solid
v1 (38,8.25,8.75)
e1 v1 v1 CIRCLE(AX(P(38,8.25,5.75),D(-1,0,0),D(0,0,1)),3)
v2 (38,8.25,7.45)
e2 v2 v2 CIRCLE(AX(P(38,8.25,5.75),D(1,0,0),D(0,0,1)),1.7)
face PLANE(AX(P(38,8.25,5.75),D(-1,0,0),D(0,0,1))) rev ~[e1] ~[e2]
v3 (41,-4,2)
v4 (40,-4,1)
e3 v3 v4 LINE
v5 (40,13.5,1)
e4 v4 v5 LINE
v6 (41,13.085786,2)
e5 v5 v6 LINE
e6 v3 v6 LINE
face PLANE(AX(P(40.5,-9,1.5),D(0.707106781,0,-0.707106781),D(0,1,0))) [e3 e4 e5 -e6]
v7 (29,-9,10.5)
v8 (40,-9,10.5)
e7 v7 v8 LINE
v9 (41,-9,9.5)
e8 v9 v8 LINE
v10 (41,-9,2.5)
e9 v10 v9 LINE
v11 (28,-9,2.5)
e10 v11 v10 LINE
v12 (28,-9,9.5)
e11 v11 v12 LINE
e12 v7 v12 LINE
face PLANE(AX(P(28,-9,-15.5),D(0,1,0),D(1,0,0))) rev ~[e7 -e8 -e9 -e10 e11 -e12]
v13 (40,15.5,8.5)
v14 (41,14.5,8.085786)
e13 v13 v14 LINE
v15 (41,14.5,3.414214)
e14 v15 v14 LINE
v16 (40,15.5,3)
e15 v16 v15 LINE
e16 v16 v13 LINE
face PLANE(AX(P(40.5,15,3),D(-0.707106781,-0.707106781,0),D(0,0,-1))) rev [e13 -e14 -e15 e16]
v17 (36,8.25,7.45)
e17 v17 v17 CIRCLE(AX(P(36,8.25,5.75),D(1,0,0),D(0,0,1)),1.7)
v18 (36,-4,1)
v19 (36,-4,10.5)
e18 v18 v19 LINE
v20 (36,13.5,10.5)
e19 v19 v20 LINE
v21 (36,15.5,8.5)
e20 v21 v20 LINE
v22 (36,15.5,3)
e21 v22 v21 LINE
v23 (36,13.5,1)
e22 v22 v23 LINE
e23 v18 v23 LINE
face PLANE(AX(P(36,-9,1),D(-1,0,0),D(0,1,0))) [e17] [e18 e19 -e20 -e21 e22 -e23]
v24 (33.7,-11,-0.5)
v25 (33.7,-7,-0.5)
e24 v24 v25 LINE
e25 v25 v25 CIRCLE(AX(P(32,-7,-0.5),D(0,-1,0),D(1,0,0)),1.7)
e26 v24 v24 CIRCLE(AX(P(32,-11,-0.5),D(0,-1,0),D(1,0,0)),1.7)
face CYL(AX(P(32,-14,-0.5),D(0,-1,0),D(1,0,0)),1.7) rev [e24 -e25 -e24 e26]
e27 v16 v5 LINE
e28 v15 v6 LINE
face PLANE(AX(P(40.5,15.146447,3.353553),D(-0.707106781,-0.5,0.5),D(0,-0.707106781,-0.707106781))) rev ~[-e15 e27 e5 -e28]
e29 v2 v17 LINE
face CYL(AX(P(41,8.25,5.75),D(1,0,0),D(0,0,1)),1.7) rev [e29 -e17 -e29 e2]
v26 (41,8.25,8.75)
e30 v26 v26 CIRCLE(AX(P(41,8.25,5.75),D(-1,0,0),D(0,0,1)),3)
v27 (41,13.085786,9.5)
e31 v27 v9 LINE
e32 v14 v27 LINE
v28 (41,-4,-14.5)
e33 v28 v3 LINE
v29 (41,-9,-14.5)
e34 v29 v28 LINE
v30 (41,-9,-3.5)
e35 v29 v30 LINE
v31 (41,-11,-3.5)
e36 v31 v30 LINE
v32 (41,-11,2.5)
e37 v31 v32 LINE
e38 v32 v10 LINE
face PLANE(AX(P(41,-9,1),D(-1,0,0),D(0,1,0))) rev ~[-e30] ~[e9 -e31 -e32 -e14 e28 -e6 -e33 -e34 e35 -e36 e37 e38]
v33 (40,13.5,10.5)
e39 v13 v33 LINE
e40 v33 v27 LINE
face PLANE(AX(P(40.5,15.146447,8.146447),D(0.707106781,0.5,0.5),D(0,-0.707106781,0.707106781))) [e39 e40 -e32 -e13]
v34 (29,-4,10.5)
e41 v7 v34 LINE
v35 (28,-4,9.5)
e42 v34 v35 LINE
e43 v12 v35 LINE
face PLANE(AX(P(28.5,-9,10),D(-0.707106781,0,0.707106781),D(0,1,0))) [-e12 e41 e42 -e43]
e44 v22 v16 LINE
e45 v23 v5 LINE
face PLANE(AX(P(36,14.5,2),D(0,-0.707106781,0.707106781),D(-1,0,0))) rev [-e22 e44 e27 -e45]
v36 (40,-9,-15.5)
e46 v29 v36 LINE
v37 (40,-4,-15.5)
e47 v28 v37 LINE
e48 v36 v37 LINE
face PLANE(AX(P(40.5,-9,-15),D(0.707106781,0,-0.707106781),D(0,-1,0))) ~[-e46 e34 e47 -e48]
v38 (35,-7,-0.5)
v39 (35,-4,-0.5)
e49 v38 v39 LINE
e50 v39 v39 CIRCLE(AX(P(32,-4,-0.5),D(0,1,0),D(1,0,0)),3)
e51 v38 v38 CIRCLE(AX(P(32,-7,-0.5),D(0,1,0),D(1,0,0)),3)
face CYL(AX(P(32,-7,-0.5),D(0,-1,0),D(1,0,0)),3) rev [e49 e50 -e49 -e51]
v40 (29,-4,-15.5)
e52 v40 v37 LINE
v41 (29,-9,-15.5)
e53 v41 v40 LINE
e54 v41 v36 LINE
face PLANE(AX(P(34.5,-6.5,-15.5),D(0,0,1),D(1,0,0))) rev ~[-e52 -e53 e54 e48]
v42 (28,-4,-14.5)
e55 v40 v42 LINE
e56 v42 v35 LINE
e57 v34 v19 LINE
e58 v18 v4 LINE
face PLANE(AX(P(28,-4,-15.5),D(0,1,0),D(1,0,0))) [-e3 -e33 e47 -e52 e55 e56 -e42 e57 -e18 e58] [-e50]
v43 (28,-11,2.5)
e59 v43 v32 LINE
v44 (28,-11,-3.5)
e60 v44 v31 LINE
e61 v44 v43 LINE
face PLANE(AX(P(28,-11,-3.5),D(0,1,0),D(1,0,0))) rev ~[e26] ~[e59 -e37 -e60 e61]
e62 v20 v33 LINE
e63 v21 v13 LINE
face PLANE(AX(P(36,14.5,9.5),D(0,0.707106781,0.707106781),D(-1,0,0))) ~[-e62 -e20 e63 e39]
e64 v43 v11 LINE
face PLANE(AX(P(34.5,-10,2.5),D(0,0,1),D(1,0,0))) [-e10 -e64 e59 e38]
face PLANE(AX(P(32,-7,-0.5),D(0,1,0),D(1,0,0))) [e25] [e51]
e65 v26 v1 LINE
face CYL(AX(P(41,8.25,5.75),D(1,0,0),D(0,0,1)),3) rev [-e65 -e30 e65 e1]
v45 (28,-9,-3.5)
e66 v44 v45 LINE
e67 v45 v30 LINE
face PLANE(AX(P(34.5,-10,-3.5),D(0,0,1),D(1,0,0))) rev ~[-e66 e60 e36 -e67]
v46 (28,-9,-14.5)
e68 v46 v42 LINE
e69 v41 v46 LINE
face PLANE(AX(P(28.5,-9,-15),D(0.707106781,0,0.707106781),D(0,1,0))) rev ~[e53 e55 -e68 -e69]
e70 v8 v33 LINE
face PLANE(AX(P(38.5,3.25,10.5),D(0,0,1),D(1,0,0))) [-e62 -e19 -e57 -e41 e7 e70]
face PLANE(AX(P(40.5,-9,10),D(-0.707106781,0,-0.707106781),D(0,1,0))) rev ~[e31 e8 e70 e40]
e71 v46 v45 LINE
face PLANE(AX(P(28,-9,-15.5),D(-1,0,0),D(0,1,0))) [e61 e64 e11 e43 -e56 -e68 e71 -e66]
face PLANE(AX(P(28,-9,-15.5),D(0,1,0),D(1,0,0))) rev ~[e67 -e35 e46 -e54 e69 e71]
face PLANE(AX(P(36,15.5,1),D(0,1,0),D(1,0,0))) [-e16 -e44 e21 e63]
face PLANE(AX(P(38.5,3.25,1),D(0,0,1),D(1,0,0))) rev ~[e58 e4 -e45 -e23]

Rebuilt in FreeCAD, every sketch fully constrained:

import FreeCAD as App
import Part
import Sketcher
from FreeCAD import Vector


def edges_at(feature, points):
    """Names of the edges that pass closest to the given points."""
    edges = feature.Shape.Edges
    near = lambda p: min(range(len(edges)), key=lambda i: edges[i].distToShape(Part.Vertex(*p))[0])
    return sorted({f"Edge{near(p) + 1}" for p in points})

doc = App.newDocument("Part")
body = doc.addObject("PartDesign::Body", "Body")

# Sketch on XZ plane
sketch1 = body.newObject("Sketcher::SketchObject", "Sketch")
sketch1.AttachmentSupport = (doc.getObject("XZ_Plane"), [""])
sketch1.MapMode = "FlatFace"
sketch1.AttachmentOffset = App.Placement(Vector(0, 0, 7), App.Rotation())
sketch1.addGeometry(Part.Circle(Vector(32, -0.5, 0), Vector(0, 0, 1), 3), False)
sketch1.addConstraint([
    Sketcher.Constraint("Diameter", 0, 6.0),
    Sketcher.Constraint("DistanceX", -1, 1, 0, 3, 32.0),
    Sketcher.Constraint("DistanceY", 0, 3, -1, 1, 0.5),
])
pad1 = body.newObject("PartDesign::Pad", "Pad")
pad1.Profile = sketch1
pad1.Length = 3
pad1.Reversed = True
body2 = doc.addObject("PartDesign::Body", "Body001")

# Sketch on XZ plane
sketch2 = body2.newObject("Sketcher::SketchObject", "Sketch001")
sketch2.AttachmentSupport = (doc.getObject("XZ_Plane001"), [""])
sketch2.MapMode = "FlatFace"
sketch2.AttachmentOffset = App.Placement(Vector(0, 0, 14), App.Rotation())
sketch2.addGeometry(Part.Circle(Vector(32, -0.5, 0), Vector(0, 0, 1), 1.7), False)
sketch2.addConstraint([
    Sketcher.Constraint("Diameter", 0, 3.4),
    Sketcher.Constraint("DistanceX", -1, 1, 0, 3, 32.0),
    Sketcher.Constraint("DistanceY", 0, 3, -1, 1, 0.5),
])
pad2 = body2.newObject("PartDesign::Pad", "Pad001")
pad2.Profile = sketch2
pad2.Length = 10
pad2.Reversed = True
body3 = doc.addObject("PartDesign::Body", "Body002")

# Sketch on YZ plane
sketch3 = body3.newObject("Sketcher::SketchObject", "Sketch002")
sketch3.AttachmentSupport = (doc.getObject("YZ_Plane002"), [""])
sketch3.MapMode = "FlatFace"
sketch3.AttachmentOffset = App.Placement(Vector(0, 0, 41), App.Rotation())
sketch3.addGeometry(Part.Circle(Vector(8.25, 5.75, 0), Vector(0, 0, 1), 3), False)
sketch3.addConstraint([
    Sketcher.Constraint("Diameter", 0, 6.0),
    Sketcher.Constraint("DistanceX", -1, 1, 0, 3, 8.25),
    Sketcher.Constraint("DistanceY", -1, 1, 0, 3, 5.75),
])
pad3 = body3.newObject("PartDesign::Pad", "Pad002")
pad3.Profile = sketch3
pad3.Length = 3
pad3.Reversed = True
body4 = doc.addObject("PartDesign::Body", "Body003")

# Sketch on YZ plane
sketch4 = body4.newObject("Sketcher::SketchObject", "Sketch003")
sketch4.AttachmentSupport = (doc.getObject("YZ_Plane003"), [""])
sketch4.MapMode = "FlatFace"
sketch4.AttachmentOffset = App.Placement(Vector(0, 0, 41), App.Rotation())
sketch4.addGeometry(Part.Circle(Vector(8.25, 5.75, 0), Vector(0, 0, 1), 1.7), False)
sketch4.addConstraint([
    Sketcher.Constraint("Diameter", 0, 3.4),
    Sketcher.Constraint("DistanceX", -1, 1, 0, 3, 8.25),
    Sketcher.Constraint("DistanceY", -1, 1, 0, 3, 5.75),
])
pad4 = body4.newObject("PartDesign::Pad", "Pad003")
pad4.Profile = sketch4
pad4.Length = 10
pad4.Reversed = True
body5 = doc.addObject("PartDesign::Body", "Body004")

# Sketch on XY plane
sketch5 = body5.newObject("Sketcher::SketchObject", "Sketch004")
sketch5.AttachmentSupport = (doc.getObject("XY_Plane004"), [""])
sketch5.MapMode = "FlatFace"
sketch5.AttachmentOffset = App.Placement(Vector(0, 0, -3.5), App.Rotation())
sketch5.addGeometry([
    Part.LineSegment(Vector(28, -9, 0), Vector(28, -11, 0)),
    Part.LineSegment(Vector(28, -11, 0), Vector(41, -11, 0)),
    Part.LineSegment(Vector(41, -11, 0), Vector(41, -9, 0)),
    Part.LineSegment(Vector(41, -9, 0), Vector(28, -9, 0)),
], False)
sketch5.addConstraint([
    Sketcher.Constraint("Coincident", 0, 2, 1, 1),
    Sketcher.Constraint("Coincident", 1, 2, 2, 1),
    Sketcher.Constraint("Coincident", 2, 2, 3, 1),
    Sketcher.Constraint("Coincident", 3, 2, 0, 1),
    Sketcher.Constraint("Vertical", 0),
    Sketcher.Constraint("Horizontal", 1),
    Sketcher.Constraint("Vertical", 2),
    Sketcher.Constraint("Horizontal", 3),
    Sketcher.Constraint("DistanceX", 1, 1, 1, 2, 13.0),
    Sketcher.Constraint("DistanceY", 0, 2, 0, 1, 2.0),
    Sketcher.Constraint("DistanceX", -1, 1, 0, 2, 28.0),
    Sketcher.Constraint("DistanceY", 0, 2, -1, 1, 11.0),
])
pad5 = body5.newObject("PartDesign::Pad", "Pad004")
pad5.Profile = sketch5
pad5.Length = 6
body6 = doc.addObject("PartDesign::Body", "Body005")

# Sketch on XY plane
sketch6 = body6.newObject("Sketcher::SketchObject", "Sketch005")
sketch6.AttachmentSupport = (doc.getObject("XY_Plane005"), [""])
sketch6.MapMode = "FlatFace"
sketch6.AttachmentOffset = App.Placement(Vector(0, 0, 1), App.Rotation())
sketch6.addGeometry([
    Part.LineSegment(Vector(36, 15.5, 0), Vector(36, -9, 0)),
    Part.LineSegment(Vector(36, -9, 0), Vector(41, -9, 0)),
    Part.LineSegment(Vector(41, -9, 0), Vector(41, 15.5, 0)),
    Part.LineSegment(Vector(41, 15.5, 0), Vector(36, 15.5, 0)),
], False)
sketch6.addConstraint([
    Sketcher.Constraint("Coincident", 0, 2, 1, 1),
    Sketcher.Constraint("Coincident", 1, 2, 2, 1),
    Sketcher.Constraint("Coincident", 2, 2, 3, 1),
    Sketcher.Constraint("Coincident", 3, 2, 0, 1),
    Sketcher.Constraint("Vertical", 0),
    Sketcher.Constraint("Horizontal", 1),
    Sketcher.Constraint("Vertical", 2),
    Sketcher.Constraint("Horizontal", 3),
    Sketcher.Constraint("DistanceX", 1, 1, 1, 2, 5.0),
    Sketcher.Constraint("DistanceY", 0, 2, 0, 1, 24.5),
    Sketcher.Constraint("DistanceX", -1, 1, 0, 2, 36.0),
    Sketcher.Constraint("DistanceY", 0, 2, -1, 1, 9.0),
])
pad6 = body6.newObject("PartDesign::Pad", "Pad005")
pad6.Profile = sketch6
pad6.Length = 9.5
doc.recompute()

chamfer = body6.newObject("PartDesign::Chamfer", "Chamfer")
chamfer.Base = (pad6, edges_at(pad6, [(38.5, 15.5, 1), (38.5, 15.5, 10.5)]))
chamfer.Size = 2
doc.recompute()

chamfer2 = body6.newObject("PartDesign::Chamfer", "Chamfer001")
chamfer2.Base = (chamfer, edges_at(chamfer, [
    (41, 2.25, 10.5),
    (41, 14.5, 9.5),
    (41, 15.5, 5.75),
    (41, 2.25, 1),
    (41, 14.5, 2),
]))
chamfer2.Size = 1
body7 = doc.addObject("PartDesign::Body", "Body006")

# Sketch on XY plane
sketch7 = body7.newObject("Sketcher::SketchObject", "Sketch006")
sketch7.AttachmentSupport = (doc.getObject("XY_Plane006"), [""])
sketch7.MapMode = "FlatFace"
sketch7.AttachmentOffset = App.Placement(Vector(0, 0, -15.5), App.Rotation())
sketch7.addGeometry([
    Part.LineSegment(Vector(28, -4, 0), Vector(28, -9, 0)),
    Part.LineSegment(Vector(28, -9, 0), Vector(41, -9, 0)),
    Part.LineSegment(Vector(41, -9, 0), Vector(41, -4, 0)),
    Part.LineSegment(Vector(41, -4, 0), Vector(28, -4, 0)),
], False)
sketch7.addConstraint([
    Sketcher.Constraint("Coincident", 0, 2, 1, 1),
    Sketcher.Constraint("Coincident", 1, 2, 2, 1),
    Sketcher.Constraint("Coincident", 2, 2, 3, 1),
    Sketcher.Constraint("Coincident", 3, 2, 0, 1),
    Sketcher.Constraint("Vertical", 0),
    Sketcher.Constraint("Horizontal", 1),
    Sketcher.Constraint("Vertical", 2),
    Sketcher.Constraint("Horizontal", 3),
    Sketcher.Constraint("DistanceX", 1, 1, 1, 2, 13.0),
    Sketcher.Constraint("DistanceY", 0, 2, 0, 1, 5.0),
    Sketcher.Constraint("DistanceX", -1, 1, 0, 2, 28.0),
    Sketcher.Constraint("DistanceY", 0, 2, -1, 1, 9.0),
])
pad7 = body7.newObject("PartDesign::Pad", "Pad006")
pad7.Profile = sketch7
pad7.Length = 26
doc.recompute()

chamfer3 = body7.newObject("PartDesign::Chamfer", "Chamfer002")
chamfer3.Base = (pad7, edges_at(pad7, [(41, -6.5, 10.5)]))
chamfer3.Size = 1
doc.recompute()

chamfer4 = body7.newObject("PartDesign::Chamfer", "Chamfer003")
chamfer4.Base = (chamfer3, edges_at(chamfer3, [(41, -6.5, -15.5), (28, -6.5, -15.5), (28, -6.5, 10.5)]))
chamfer4.Size = 1
doc.recompute()

boolean = body7.newObject("PartDesign::Boolean", "Boolean")
boolean.Type = "Fuse"
boolean.addObjects([body5])
doc.recompute()

boolean2 = body7.newObject("PartDesign::Boolean", "Boolean001")
boolean2.Type = "Fuse"
boolean2.addObjects([body6])
doc.recompute()

boolean3 = body7.newObject("PartDesign::Boolean", "Boolean002")
boolean3.Type = "Cut"
boolean3.addObjects([body4])
doc.recompute()

boolean4 = body7.newObject("PartDesign::Boolean", "Boolean003")
boolean4.Type = "Cut"
boolean4.addObjects([body3])
doc.recompute()

boolean5 = body7.newObject("PartDesign::Boolean", "Boolean004")
boolean5.Type = "Cut"
boolean5.addObjects([body2])
doc.recompute()

boolean6 = body7.newObject("PartDesign::Boolean", "Boolean005")
boolean6.Type = "Cut"
boolean6.addObjects([body])

doc.recompute()
